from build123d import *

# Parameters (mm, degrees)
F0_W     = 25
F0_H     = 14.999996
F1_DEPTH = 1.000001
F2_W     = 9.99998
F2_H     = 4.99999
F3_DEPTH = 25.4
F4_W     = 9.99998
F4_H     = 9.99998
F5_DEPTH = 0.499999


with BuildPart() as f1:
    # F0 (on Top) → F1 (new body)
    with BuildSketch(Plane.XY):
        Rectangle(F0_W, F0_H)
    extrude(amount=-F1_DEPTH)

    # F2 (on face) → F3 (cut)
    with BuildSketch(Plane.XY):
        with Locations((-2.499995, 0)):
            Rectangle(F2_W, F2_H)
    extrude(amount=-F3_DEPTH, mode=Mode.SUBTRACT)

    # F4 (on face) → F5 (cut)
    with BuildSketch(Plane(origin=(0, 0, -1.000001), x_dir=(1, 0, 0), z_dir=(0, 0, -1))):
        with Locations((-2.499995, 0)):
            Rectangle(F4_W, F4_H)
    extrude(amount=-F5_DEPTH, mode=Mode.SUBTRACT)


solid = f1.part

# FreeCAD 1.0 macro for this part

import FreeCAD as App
import Part
import Sketcher
from FreeCAD import Vector

doc = App.newDocument("Part")
body = doc.addObject("PartDesign::Body", "Body")

# Sketch on XY plane
sketch1 = doc.addObject("Sketcher::SketchObject", "Sketch")
body.addObject(sketch1)
sketch1.AttachmentSupport = (doc.XY_Plane, [""])
sketch1.MapMode = "FlatFace"
sketch1.addGeometry(Part.LineSegment(Vector(-12, 7, 0), Vector(-12, -7, 0)), False)
sketch1.addGeometry(Part.LineSegment(Vector(-12, -7, 0), Vector(12, -7, 0)), False)
sketch1.addGeometry(Part.LineSegment(Vector(12, -7, 0), Vector(12, 7, 0)), False)
sketch1.addGeometry(Part.LineSegment(Vector(12, 7, 0), Vector(-12, 7, 0)), False)
sketch1.addConstraint(Sketcher.Constraint("Coincident", 0, 2, 1, 1))
sketch1.addConstraint(Sketcher.Constraint("Coincident", 1, 2, 2, 1))
sketch1.addConstraint(Sketcher.Constraint("Coincident", 2, 2, 3, 1))
sketch1.addConstraint(Sketcher.Constraint("Coincident", 3, 2, 0, 1))
sketch1.addConstraint(Sketcher.Constraint("Vertical", 0))
sketch1.addConstraint(Sketcher.Constraint("Horizontal", 1))
sketch1.addConstraint(Sketcher.Constraint("Vertical", 2))
sketch1.addConstraint(Sketcher.Constraint("Horizontal", 3))
sketch1.addConstraint(Sketcher.Constraint("Symmetric", 0, 2, 2, 2, -1, 1))
sketch1.addConstraint(Sketcher.Constraint("DistanceX", 1, 1, 1, 2, 25.0))
sketch1.addConstraint(Sketcher.Constraint("DistanceY", 0, 2, 0, 1, 14.999996))
pad1 = doc.addObject("PartDesign::Pad", "Pad")
body.addObject(pad1)
pad1.Profile = sketch1
pad1.Length = 1.000001
pad1.Reversed = True

# Sketch on XY plane
sketch2 = doc.addObject("Sketcher::SketchObject", "Sketch001")
body.addObject(sketch2)
sketch2.AttachmentSupport = (doc.XY_Plane, [""])
sketch2.MapMode = "FlatFace"
sketch2.addGeometry(Part.LineSegment(Vector(-7.5, 2.5, 0), Vector(-7.5, -2.5, 0)), False)
sketch2.addGeometry(Part.LineSegment(Vector(-7.5, -2.5, 0), Vector(2.5, -2.5, 0)), False)
sketch2.addGeometry(Part.LineSegment(Vector(2.5, -2.5, 0), Vector(2.5, 2.5, 0)), False)
sketch2.addGeometry(Part.LineSegment(Vector(2.5, 2.5, 0), Vector(-7.5, 2.5, 0)), False)
sketch2.addConstraint(Sketcher.Constraint("Coincident", 0, 2, 1, 1))
sketch2.addConstraint(Sketcher.Constraint("Coincident", 1, 2, 2, 1))
sketch2.addConstraint(Sketcher.Constraint("Coincident", 2, 2, 3, 1))
sketch2.addConstraint(Sketcher.Constraint("Coincident", 3, 2, 0, 1))
sketch2.addConstraint(Sketcher.Constraint("Vertical", 0))
sketch2.addConstraint(Sketcher.Constraint("Horizontal", 1))
sketch2.addConstraint(Sketcher.Constraint("Vertical", 2))
sketch2.addConstraint(Sketcher.Constraint("Horizontal", 3))
sketch2.addConstraint(Sketcher.Constraint("DistanceX", 1, 1, 1, 2, 9.99998))
sketch2.addConstraint(Sketcher.Constraint("DistanceY", 0, 2, 0, 1, 4.99999))
sketch2.addConstraint(Sketcher.Constraint("DistanceX", 0, 2, -1, 1, 7.499985))
sketch2.addConstraint(Sketcher.Constraint("DistanceY", 0, 2, -1, 1, 2.499995))
pocket1 = doc.addObject("PartDesign::Pocket", "Pocket")
body.addObject(pocket1)
pocket1.Profile = sketch2
pocket1.Length = 25.4

# Sketch on XY plane
sketch3 = doc.addObject("Sketcher::SketchObject", "Sketch002")
body.addObject(sketch3)
sketch3.AttachmentSupport = (doc.XY_Plane, [""])
sketch3.MapMode = "FlatFace"
sketch3.AttachmentOffset = App.Placement(Vector(0, 0, -1.000001), App.Rotation())
sketch3.addGeometry(Part.LineSegment(Vector(-7, -5, 0), Vector(-7, 5, 0)), False)
sketch3.addGeometry(Part.LineSegment(Vector(-7, 5, 0), Vector(2, 5, 0)), False)
sketch3.addGeometry(Part.LineSegment(Vector(2, 5, 0), Vector(2, -5, 0)), False)
sketch3.addGeometry(Part.LineSegment(Vector(2, -5, 0), Vector(-7, -5, 0)), False)
sketch3.addConstraint(Sketcher.Constraint("Coincident", 0, 2, 1, 1))
sketch3.addConstraint(Sketcher.Constraint("Coincident", 1, 2, 2, 1))
sketch3.addConstraint(Sketcher.Constraint("Coincident", 2, 2, 3, 1))
sketch3.addConstraint(Sketcher.Constraint("Coincident", 3, 2, 0, 1))
sketch3.addConstraint(Sketcher.Constraint("Vertical", 0))
sketch3.addConstraint(Sketcher.Constraint("Horizontal", 1))
sketch3.addConstraint(Sketcher.Constraint("Vertical", 2))
sketch3.addConstraint(Sketcher.Constraint("Horizontal", 3))
sketch3.addConstraint(Sketcher.Constraint("Equal", 3, 0))
sketch3.addConstraint(Sketcher.Constraint("DistanceX", 1, 1, 1, 2, 9.99998))
sketch3.addConstraint(Sketcher.Constraint("DistanceY", -1, 1, 0, 2, 4.99999))
sketch3.addConstraint(Sketcher.Constraint("DistanceX", 0, 2, -1, 1, 7.499985))
pocket2 = doc.addObject("PartDesign::Pocket", "Pocket001")
body.addObject(pocket2)
pocket2.Profile = sketch3
pocket2.Length = 0.499999
pocket2.Reversed = True

doc.recompute()
